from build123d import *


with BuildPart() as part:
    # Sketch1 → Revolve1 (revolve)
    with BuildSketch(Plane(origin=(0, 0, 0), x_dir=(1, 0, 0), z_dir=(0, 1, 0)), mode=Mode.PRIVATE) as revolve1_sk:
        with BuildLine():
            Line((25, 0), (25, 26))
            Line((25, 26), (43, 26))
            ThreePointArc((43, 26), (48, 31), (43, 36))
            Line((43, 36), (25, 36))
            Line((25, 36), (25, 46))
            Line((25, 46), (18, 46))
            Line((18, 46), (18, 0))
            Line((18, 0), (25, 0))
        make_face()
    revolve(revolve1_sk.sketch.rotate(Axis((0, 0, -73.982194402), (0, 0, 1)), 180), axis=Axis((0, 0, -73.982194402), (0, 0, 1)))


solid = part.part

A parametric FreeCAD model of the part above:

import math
import FreeCAD as App
import Part
import Sketcher

V = App.Vector
Q = App.Units.Quantity

doc = App.newDocument("Part")
body = doc.addObject("PartDesign::Body", "Body")

# Sketch on XZ plane
sketch1 = doc.addObject("Sketcher::SketchObject", "Sketch")
body.addObject(sketch1)
sketch1.AttachmentSupport = (doc.XZ_Plane, [""])
sketch1.MapMode = "FlatFace"
sketch1.addGeometry([
    Part.LineSegment(V(25, 0, 0), V(25, -26, 0)),  # 0
    Part.LineSegment(V(25, -26, 0), V(43, -26, 0)),  # 1
    Part.ArcOfCircle(Part.Circle(V(43, -31, 0), V(0, 0, 1), 5), math.radians(-90), math.radians(90)),  # 2
    Part.LineSegment(V(43, -36, 0), V(25, -36, 0)),  # 3
    Part.LineSegment(V(25, -36, 0), V(25, -46, 0)),  # 4
    Part.LineSegment(V(25, -46, 0), V(18, -46, 0)),  # 5
    Part.LineSegment(V(18, -46, 0), V(18, 0, 0)),  # 6
    Part.LineSegment(V(18, 0, 0), V(25, 0, 0)),  # 7
], False)
sketch1.addConstraint([
    Sketcher.Constraint("Coincident", 0, 2, 1, 1),
    Sketcher.Constraint("Tangent", 1, 2, 2, 2),
    Sketcher.Constraint("Tangent", 2, 1, 3, 1),
    Sketcher.Constraint("Coincident", 3, 2, 4, 1),
    Sketcher.Constraint("Coincident", 4, 2, 5, 1),
    Sketcher.Constraint("Coincident", 5, 2, 6, 1),
    Sketcher.Constraint("Coincident", 6, 2, 7, 1),
    Sketcher.Constraint("Coincident", 7, 2, 0, 1),
    Sketcher.Constraint("Vertical", 0),
    Sketcher.Constraint("Horizontal", 1),
    Sketcher.Constraint("Horizontal", 3),
    Sketcher.Constraint("Vertical", 4),
    Sketcher.Constraint("Horizontal", 5),
    Sketcher.Constraint("Vertical", 6),
    Sketcher.Constraint("Horizontal", 7),
    Sketcher.Constraint("PointOnObject", 6, 2, -1),
    Sketcher.Constraint("Vertical", 0, 2, 3, 2),
    Sketcher.Constraint("Radius", 2, Q("5 mm")),
    Sketcher.Constraint("DistanceX", 1, 1, 1, 2, Q("18 mm")),
    Sketcher.Constraint("DistanceX", 5, 2, 5, 1, Q("7 mm")),
    Sketcher.Constraint("DistanceY", 0, 2, 0, 1, Q("26 mm")),
    Sketcher.Constraint("DistanceY", 4, 2, 4, 1, Q("10 mm")),
    Sketcher.Constraint("DistanceX", -1, 1, 2, 3, Q("43 mm")),
])
revolution = doc.addObject("PartDesign::Revolution", "Revolution")
body.addObject(revolution)
revolution.Profile = sketch1
revolution.ReferenceAxis = (sketch1, ["V_Axis"])
revolution.Angle = 360

doc.recompute()
